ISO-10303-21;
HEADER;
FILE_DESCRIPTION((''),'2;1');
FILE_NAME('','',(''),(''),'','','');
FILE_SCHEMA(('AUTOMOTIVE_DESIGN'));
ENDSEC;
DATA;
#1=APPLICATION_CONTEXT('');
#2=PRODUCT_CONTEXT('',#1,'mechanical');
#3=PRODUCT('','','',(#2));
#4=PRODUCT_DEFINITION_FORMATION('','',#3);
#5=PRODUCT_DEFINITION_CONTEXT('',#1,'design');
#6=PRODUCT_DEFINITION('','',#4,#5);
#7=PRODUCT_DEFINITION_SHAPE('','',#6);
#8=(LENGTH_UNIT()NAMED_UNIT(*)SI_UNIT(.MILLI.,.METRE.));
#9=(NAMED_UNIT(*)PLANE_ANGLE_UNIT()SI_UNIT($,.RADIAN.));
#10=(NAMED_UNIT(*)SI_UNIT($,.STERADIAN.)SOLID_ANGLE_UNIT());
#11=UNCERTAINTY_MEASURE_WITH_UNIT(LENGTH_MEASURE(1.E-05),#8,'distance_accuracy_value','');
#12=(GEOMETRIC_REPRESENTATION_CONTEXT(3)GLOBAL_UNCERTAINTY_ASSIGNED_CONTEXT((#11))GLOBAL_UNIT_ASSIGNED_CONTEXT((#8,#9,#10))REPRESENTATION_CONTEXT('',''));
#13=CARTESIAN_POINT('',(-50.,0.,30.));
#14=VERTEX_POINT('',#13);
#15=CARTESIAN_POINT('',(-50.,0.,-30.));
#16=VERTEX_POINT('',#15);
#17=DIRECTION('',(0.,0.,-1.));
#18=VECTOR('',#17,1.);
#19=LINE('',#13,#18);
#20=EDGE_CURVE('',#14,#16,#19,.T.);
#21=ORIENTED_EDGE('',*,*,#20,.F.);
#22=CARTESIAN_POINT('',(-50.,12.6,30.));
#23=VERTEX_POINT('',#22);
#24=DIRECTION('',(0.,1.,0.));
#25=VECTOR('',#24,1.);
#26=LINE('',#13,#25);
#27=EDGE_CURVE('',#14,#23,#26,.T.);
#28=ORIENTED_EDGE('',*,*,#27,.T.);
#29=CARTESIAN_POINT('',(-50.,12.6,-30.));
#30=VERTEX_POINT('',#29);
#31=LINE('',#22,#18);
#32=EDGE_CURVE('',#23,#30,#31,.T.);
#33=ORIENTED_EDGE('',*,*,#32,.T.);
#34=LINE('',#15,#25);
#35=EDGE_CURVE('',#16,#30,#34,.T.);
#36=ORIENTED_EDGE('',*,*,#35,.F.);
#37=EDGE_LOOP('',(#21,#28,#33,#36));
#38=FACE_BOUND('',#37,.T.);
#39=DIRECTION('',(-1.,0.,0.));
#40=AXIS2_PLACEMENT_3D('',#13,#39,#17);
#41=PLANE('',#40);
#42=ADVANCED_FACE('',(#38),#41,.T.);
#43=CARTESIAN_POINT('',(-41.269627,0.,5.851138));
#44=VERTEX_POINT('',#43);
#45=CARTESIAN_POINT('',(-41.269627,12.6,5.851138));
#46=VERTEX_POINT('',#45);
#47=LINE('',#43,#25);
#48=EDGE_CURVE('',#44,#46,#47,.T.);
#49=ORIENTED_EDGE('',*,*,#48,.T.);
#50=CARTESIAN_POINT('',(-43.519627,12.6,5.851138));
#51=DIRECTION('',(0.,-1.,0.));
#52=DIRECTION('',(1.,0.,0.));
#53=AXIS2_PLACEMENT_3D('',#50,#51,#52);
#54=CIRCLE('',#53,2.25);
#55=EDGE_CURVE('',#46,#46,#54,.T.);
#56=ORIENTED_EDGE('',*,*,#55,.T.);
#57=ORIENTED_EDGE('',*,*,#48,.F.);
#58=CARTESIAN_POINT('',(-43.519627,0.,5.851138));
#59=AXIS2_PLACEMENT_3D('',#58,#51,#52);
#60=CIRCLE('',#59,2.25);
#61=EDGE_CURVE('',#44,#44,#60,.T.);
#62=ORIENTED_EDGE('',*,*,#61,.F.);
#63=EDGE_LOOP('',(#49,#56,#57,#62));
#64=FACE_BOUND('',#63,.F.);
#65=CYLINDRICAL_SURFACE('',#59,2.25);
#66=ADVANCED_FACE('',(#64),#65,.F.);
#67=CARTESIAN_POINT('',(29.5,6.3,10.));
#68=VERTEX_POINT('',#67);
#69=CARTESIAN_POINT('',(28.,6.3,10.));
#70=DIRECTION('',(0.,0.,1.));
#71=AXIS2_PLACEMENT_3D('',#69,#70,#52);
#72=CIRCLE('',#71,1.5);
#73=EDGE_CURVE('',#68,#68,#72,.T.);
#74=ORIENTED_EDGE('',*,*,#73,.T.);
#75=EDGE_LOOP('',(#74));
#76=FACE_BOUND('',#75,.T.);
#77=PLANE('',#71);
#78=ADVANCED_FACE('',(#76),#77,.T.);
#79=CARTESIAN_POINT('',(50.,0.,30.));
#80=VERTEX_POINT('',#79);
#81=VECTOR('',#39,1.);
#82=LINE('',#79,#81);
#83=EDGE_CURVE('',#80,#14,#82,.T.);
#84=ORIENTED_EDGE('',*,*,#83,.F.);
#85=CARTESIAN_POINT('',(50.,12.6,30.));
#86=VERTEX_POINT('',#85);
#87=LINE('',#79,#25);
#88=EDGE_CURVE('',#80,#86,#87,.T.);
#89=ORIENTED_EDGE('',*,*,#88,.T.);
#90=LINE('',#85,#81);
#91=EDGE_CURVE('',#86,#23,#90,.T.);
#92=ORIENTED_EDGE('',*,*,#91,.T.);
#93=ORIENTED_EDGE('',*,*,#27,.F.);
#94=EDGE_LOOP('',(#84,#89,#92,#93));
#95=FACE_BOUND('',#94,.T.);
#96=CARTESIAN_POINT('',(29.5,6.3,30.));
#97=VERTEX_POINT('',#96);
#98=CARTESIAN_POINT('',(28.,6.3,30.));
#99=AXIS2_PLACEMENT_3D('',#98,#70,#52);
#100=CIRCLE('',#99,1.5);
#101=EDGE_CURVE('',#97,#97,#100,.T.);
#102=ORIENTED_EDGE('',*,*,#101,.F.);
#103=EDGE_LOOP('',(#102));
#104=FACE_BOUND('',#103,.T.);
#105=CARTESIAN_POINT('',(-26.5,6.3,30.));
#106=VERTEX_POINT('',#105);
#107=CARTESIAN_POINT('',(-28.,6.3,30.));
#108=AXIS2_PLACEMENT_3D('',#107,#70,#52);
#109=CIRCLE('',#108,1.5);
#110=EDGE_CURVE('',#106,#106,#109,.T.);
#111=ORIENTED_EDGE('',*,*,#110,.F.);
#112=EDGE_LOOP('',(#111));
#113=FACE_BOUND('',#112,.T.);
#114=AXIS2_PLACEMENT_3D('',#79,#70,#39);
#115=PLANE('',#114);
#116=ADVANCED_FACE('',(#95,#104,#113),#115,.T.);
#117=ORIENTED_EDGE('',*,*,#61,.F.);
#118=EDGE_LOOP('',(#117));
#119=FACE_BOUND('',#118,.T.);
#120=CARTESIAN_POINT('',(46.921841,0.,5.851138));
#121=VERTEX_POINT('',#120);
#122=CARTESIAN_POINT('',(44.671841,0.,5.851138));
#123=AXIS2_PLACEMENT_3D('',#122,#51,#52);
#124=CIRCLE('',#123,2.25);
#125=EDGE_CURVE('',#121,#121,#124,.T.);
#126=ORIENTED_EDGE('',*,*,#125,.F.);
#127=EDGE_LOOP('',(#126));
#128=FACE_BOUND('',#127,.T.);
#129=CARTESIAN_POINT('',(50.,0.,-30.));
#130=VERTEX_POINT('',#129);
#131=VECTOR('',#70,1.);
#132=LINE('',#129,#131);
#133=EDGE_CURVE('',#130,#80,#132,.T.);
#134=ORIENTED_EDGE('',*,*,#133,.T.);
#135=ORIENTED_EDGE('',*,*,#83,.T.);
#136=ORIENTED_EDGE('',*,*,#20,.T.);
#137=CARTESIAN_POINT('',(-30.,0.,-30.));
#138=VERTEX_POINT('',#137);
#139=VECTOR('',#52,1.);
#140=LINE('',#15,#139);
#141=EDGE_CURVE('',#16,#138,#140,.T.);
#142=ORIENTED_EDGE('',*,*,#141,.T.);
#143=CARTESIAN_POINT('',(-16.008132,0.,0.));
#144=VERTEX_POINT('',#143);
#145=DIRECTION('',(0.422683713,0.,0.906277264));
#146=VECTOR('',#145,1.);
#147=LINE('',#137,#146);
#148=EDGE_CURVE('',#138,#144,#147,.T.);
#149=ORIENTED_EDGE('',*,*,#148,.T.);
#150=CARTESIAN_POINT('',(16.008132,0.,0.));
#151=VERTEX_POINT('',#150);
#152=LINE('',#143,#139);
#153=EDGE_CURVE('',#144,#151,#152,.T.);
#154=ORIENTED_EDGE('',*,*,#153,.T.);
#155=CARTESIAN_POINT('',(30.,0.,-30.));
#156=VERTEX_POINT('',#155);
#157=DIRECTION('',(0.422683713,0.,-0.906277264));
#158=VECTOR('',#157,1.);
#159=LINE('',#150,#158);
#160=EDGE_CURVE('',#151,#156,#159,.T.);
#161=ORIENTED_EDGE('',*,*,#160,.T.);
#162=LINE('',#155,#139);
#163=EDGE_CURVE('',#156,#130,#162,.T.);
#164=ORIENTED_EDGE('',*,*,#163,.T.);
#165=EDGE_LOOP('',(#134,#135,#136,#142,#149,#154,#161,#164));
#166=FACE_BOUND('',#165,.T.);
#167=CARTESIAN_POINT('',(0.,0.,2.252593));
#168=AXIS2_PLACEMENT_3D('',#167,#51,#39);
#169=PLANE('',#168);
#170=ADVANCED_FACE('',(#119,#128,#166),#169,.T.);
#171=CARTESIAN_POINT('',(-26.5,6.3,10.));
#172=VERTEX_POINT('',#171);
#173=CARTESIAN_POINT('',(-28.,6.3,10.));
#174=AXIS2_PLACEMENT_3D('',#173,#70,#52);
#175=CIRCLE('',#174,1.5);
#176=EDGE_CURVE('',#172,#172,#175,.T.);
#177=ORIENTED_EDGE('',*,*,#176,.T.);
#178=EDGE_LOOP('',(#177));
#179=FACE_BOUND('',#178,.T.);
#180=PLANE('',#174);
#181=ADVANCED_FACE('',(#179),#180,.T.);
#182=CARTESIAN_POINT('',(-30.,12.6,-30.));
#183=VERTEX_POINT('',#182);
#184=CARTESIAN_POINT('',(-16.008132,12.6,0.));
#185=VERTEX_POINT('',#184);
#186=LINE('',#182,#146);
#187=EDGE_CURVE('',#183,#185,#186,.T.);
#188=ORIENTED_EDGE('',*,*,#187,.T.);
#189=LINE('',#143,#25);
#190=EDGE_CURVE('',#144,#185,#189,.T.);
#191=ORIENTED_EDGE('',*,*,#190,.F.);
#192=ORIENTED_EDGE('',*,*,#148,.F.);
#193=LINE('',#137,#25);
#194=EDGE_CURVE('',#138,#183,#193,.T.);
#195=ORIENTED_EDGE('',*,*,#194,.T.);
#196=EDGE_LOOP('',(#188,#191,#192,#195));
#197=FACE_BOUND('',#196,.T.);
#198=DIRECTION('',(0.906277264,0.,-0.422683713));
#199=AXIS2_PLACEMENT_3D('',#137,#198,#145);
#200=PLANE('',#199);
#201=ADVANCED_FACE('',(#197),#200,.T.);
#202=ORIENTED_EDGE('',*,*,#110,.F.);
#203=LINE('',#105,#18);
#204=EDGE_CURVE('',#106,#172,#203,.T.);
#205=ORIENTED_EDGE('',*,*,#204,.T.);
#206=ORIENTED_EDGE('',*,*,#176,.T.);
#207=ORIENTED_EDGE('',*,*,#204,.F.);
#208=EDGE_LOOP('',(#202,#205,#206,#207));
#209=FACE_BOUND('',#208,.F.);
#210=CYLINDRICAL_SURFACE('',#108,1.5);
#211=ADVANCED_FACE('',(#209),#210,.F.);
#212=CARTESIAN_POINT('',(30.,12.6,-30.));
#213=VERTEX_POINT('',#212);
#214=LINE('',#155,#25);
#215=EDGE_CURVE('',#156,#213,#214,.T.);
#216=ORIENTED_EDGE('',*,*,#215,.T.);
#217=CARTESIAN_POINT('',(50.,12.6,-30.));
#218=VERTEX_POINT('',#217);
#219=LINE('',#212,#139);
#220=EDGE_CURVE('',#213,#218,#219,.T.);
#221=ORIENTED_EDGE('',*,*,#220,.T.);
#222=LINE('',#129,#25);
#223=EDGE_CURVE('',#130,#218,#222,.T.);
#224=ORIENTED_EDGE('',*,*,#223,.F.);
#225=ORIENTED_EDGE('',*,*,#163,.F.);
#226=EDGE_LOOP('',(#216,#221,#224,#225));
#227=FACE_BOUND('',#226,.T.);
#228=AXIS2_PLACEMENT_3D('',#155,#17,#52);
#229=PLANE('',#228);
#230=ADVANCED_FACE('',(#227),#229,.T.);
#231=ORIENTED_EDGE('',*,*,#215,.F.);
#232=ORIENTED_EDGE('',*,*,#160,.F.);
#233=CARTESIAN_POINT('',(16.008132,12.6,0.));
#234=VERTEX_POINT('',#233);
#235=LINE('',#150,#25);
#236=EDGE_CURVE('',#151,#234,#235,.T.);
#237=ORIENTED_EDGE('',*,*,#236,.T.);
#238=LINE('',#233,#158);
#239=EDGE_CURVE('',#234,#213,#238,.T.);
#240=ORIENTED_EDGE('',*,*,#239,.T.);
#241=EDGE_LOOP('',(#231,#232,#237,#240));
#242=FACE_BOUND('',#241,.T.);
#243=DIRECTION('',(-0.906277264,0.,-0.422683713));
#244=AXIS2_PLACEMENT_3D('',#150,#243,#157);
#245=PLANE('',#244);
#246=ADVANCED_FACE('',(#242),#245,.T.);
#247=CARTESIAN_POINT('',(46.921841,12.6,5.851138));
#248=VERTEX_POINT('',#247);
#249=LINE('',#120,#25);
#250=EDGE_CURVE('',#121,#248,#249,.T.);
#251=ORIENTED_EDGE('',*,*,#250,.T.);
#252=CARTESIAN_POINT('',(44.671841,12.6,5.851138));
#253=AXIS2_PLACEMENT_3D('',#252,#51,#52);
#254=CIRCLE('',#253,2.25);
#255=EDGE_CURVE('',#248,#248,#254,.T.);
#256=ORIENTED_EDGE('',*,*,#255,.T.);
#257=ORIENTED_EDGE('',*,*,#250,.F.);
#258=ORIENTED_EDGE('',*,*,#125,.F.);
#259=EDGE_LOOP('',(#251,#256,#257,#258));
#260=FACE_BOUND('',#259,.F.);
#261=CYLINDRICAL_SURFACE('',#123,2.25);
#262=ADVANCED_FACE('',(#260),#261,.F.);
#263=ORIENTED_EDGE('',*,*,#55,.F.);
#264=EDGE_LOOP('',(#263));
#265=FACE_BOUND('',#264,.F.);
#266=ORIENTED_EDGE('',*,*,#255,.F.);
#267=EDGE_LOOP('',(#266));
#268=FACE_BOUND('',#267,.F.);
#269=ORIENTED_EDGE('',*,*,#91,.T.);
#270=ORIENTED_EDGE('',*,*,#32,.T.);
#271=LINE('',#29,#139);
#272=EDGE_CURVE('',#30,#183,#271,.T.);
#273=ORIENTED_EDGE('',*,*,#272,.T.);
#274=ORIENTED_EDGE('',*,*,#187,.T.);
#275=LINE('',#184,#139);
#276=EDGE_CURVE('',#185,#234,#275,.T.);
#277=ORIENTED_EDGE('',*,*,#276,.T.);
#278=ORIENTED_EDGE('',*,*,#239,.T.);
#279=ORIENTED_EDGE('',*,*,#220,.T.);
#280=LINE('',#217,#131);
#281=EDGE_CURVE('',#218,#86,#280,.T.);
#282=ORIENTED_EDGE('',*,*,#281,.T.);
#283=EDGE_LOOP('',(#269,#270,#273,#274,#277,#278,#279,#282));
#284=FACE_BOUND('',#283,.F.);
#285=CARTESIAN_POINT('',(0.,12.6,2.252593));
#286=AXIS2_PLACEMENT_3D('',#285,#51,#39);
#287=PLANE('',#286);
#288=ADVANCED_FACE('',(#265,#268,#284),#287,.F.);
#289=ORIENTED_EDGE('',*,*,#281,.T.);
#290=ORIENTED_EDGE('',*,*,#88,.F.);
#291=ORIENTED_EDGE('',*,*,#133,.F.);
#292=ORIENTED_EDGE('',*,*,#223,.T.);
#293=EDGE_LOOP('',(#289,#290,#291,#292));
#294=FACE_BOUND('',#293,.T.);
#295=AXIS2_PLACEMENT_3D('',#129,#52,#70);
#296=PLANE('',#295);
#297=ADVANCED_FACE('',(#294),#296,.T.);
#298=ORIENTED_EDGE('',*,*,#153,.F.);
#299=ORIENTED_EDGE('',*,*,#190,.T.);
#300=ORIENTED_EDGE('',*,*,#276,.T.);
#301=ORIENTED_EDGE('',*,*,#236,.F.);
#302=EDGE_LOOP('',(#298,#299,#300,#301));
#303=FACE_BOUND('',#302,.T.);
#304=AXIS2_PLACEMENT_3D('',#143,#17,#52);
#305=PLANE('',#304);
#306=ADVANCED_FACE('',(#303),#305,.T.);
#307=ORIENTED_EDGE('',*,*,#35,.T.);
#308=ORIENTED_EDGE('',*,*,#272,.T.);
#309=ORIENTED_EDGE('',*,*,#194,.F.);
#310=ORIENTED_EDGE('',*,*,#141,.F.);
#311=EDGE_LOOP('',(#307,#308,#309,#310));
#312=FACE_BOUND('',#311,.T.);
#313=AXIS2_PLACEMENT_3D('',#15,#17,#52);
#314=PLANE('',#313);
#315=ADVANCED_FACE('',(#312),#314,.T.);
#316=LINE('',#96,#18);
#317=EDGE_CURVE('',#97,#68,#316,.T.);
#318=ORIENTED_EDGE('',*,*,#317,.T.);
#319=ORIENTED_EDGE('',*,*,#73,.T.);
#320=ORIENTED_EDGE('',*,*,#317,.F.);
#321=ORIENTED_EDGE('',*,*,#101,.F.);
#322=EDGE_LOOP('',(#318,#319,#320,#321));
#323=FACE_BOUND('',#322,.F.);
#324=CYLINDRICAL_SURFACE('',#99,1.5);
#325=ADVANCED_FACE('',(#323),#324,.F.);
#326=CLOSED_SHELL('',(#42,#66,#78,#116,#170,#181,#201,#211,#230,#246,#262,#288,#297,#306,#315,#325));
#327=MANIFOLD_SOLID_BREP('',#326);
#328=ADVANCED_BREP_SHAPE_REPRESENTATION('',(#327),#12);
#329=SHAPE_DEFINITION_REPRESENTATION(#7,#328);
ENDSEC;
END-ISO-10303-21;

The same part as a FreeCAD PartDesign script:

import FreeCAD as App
import Part
import Sketcher
Q = App.Units.Quantity


def add_polygon(sketch, points):
    """Adds a closed chain of lines whose ends are joined by coincident constraints."""
    first, n = sketch.GeometryCount, len(points)
    for a, b in zip(points, points[1:] + points[:1]):
        sketch.addGeometry(Part.LineSegment(App.Vector(*a, 0), App.Vector(*b, 0)), False)
    for i in range(n):
        sketch.addConstraint(Sketcher.Constraint("Coincident", first + i, 2, first + (i + 1) % n, 1))

doc = App.newDocument("Part")
body = doc.addObject("PartDesign::Body", "Body")

sketch1 = doc.addObject("Sketcher::SketchObject", "Sketch")
body.addObject(sketch1)
sketch1.AttachmentSupport = (doc.XZ_Plane, [""])
sketch1.MapMode = "FlatFace"
add_polygon(sketch1, [(-16, 0), (-30, -30), (-50, -30), (-50, 30), (50, 30), (50, -30), (30, -30), (16, 0)])
sketch1.addConstraint(Sketcher.Constraint("Horizontal", 1))
sketch1.addConstraint(Sketcher.Constraint("Vertical", 2))
sketch1.addConstraint(Sketcher.Constraint("Horizontal", 3))
sketch1.addConstraint(Sketcher.Constraint("Vertical", 4))
sketch1.addConstraint(Sketcher.Constraint("Horizontal", 5))
sketch1.addConstraint(Sketcher.Constraint("Horizontal", 7))
sketch1.addConstraint(Sketcher.Constraint("Symmetric", 1, 2, 3, 2, -1, 1))
sketch1.addConstraint(Sketcher.Constraint("Symmetric", 6, 2, 7, 2, -1, 1))
sketch1.addConstraint(Sketcher.Constraint("Symmetric", 0, 2, 5, 2, -2))
sketch1.addConstraint(Sketcher.Constraint("DistanceX", 1, 2, 1, 1, Q("20 mm")))
sketch1.addConstraint(Sketcher.Constraint("DistanceX", 3, 1, 3, 2, Q("100 mm")))
sketch1.addConstraint(Sketcher.Constraint("DistanceY", 2, 1, 2, 2, Q("60 mm")))
sketch1.addConstraint(Sketcher.Constraint("DistanceX", 7, 2, 7, 1, Q("32.016265 mm")))
pad1 = doc.addObject("PartDesign::Pad", "Pad")
body.addObject(pad1)
pad1.Profile = sketch1
pad1.Length = 12.6
pad1.Reversed = True

sketch2 = doc.addObject("Sketcher::SketchObject", "Sketch001")
body.addObject(sketch2)
sketch2.AttachmentSupport = (doc.XY_Plane, [""])
sketch2.MapMode = "FlatFace"
sketch2.AttachmentOffset = App.Placement(App.Vector(0, 0, 30), App.Rotation())
sketch2.addGeometry(Part.Circle(App.Vector(-28, 6.3, 0), App.Vector(0, 0, 1), 1.5), False)
sketch2.addGeometry(Part.Circle(App.Vector(28, 6.3, 0), App.Vector(0, 0, 1), 1.5), False)
sketch2.addConstraint(Sketcher.Constraint("Equal", 0, 1))
sketch2.addConstraint(Sketcher.Constraint("Symmetric", 0, 3, 1, 3, -2))
sketch2.addConstraint(Sketcher.Constraint("Diameter", 0, Q("3 mm")))
sketch2.addConstraint(Sketcher.Constraint("DistanceX", 0, 3, -1, 1, Q("28 mm")))
sketch2.addConstraint(Sketcher.Constraint("DistanceY", -1, 1, 0, 3, Q("6.3 mm")))
pocket1 = doc.addObject("PartDesign::Pocket", "Pocket")
body.addObject(pocket1)
pocket1.Profile = sketch2
pocket1.Length = 20

sketch3 = doc.addObject("Sketcher::SketchObject", "Sketch002")
body.addObject(sketch3)
sketch3.AttachmentSupport = (doc.XZ_Plane, [""])
sketch3.MapMode = "FlatFace"
sketch3.addGeometry(Part.Circle(App.Vector(44.7, 5.9, 0), App.Vector(0, 0, 1), 2.2), False)
sketch3.addConstraint(Sketcher.Constraint("Diameter", 0, Q("4.5 mm")))
sketch3.addConstraint(Sketcher.Constraint("DistanceX", -1, 1, 0, 3, Q("44.671841 mm")))
sketch3.addConstraint(Sketcher.Constraint("DistanceY", -1, 1, 0, 3, Q("5.851138 mm")))
pocket2 = doc.addObject("PartDesign::Pocket", "Pocket001")
body.addObject(pocket2)
pocket2.Profile = sketch3
pocket2.Type = "UpToFirst"

sketch4 = doc.addObject("Sketcher::SketchObject", "Sketch003")
body.addObject(sketch4)
sketch4.AttachmentSupport = (doc.XZ_Plane, [""])
sketch4.MapMode = "FlatFace"
sketch4.addGeometry(Part.Circle(App.Vector(-43.5, 5.9, 0), App.Vector(0, 0, 1), 2.2), False)
sketch4.addConstraint(Sketcher.Constraint("Diameter", 0, Q("4.5 mm")))
sketch4.addConstraint(Sketcher.Constraint("DistanceX", 0, 3, -1, 1, Q("43.519627 mm")))
sketch4.addConstraint(Sketcher.Constraint("DistanceY", -1, 1, 0, 3, Q("5.851138 mm")))
pocket3 = doc.addObject("PartDesign::Pocket", "Pocket002")
body.addObject(pocket3)
pocket3.Profile = sketch4
pocket3.Type = "UpToFirst"

doc.recompute()
